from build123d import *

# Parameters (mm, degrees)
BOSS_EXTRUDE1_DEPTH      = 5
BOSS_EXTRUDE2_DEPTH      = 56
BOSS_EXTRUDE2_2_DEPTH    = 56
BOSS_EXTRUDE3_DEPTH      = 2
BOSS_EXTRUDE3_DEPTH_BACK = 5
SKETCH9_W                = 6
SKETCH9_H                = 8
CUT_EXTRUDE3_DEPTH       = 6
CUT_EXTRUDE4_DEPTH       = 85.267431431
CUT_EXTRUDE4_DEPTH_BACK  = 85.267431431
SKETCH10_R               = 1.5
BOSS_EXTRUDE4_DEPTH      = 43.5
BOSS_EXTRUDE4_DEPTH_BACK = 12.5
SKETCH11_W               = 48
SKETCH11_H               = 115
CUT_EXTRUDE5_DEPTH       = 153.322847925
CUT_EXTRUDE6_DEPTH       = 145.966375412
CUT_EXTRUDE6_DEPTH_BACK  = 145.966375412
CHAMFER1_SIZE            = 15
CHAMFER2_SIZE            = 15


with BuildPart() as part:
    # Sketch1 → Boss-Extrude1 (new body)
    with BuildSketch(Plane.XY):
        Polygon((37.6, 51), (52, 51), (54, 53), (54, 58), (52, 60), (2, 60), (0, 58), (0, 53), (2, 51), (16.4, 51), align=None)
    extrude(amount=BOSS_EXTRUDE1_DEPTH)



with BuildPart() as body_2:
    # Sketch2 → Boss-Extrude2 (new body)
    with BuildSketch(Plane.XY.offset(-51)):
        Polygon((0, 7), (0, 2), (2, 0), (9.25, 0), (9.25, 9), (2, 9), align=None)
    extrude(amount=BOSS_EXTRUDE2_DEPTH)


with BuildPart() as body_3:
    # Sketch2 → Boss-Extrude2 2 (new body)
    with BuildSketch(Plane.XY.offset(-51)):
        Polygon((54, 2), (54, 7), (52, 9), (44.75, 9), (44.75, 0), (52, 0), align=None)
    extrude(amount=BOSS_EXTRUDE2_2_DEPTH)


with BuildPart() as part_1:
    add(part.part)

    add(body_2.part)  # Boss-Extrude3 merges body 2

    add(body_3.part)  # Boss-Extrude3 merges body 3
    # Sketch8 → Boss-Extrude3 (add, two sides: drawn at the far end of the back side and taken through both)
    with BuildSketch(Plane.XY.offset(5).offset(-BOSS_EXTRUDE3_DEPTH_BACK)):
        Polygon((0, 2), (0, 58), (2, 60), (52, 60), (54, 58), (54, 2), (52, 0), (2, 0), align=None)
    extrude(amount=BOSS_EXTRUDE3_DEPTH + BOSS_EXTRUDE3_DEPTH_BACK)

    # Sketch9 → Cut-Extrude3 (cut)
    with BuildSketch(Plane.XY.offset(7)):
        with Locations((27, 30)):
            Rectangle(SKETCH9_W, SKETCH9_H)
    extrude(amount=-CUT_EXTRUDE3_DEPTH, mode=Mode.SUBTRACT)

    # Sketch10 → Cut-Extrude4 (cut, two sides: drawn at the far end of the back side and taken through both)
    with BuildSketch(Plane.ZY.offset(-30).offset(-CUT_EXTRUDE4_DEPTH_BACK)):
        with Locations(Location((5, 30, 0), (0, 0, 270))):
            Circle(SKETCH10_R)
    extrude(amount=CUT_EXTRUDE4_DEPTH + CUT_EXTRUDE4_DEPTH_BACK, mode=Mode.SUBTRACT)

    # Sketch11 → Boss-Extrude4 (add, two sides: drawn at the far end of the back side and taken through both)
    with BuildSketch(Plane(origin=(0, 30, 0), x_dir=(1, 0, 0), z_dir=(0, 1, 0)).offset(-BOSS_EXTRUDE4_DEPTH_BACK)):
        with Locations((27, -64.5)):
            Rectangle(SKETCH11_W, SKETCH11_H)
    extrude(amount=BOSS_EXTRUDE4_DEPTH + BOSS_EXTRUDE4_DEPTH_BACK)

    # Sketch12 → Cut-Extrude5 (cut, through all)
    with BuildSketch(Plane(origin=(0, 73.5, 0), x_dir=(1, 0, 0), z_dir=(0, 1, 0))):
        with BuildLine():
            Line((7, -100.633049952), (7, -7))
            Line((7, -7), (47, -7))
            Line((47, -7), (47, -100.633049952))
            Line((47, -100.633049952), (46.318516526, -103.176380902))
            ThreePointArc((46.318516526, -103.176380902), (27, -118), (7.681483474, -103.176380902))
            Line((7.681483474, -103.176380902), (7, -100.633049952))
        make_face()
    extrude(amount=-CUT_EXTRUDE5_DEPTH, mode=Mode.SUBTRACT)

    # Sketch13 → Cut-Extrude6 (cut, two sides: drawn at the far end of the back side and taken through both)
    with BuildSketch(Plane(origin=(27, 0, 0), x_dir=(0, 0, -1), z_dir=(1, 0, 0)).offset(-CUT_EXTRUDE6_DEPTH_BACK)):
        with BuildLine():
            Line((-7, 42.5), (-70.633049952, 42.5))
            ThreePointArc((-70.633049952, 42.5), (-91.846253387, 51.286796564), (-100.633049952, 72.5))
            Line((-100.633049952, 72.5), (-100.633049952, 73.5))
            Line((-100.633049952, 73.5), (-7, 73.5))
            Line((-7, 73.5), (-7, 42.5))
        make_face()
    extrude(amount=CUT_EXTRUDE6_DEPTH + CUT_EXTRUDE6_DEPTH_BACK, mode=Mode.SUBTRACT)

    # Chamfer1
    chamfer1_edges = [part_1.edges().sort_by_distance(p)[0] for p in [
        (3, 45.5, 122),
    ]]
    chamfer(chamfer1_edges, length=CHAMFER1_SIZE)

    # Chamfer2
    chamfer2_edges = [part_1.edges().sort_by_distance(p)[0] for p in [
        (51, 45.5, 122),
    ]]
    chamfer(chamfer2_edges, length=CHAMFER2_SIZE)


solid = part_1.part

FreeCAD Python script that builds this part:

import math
import FreeCAD as App
import Part
import Sketcher
from FreeCAD import Vector
Q = App.Units.Quantity


def edges_at(feature, points):
    """Names of the edges that pass closest to the given points."""
    edges = feature.Shape.Edges
    near = lambda p: min(range(len(edges)), key=lambda i: edges[i].distToShape(Part.Vertex(*p))[0])
    return sorted({f"Edge{near(p) + 1}" for p in points})

doc = App.newDocument("Part")
body = doc.addObject("PartDesign::Body", "Body")

# Sketch on XY plane
sketch1 = doc.addObject("Sketcher::SketchObject", "Sketch")
body.addObject(sketch1)
sketch1.AttachmentSupport = (doc.XY_Plane, [""])
sketch1.MapMode = "FlatFace"
sketch1.addGeometry([
    Part.LineSegment(Vector(52, 51, 0), Vector(54, 53, 0)),  # 0
    Part.LineSegment(Vector(54, 53, 0), Vector(54, 58, 0)),  # 1
    Part.LineSegment(Vector(54, 58, 0), Vector(52, 60, 0)),  # 2
    Part.LineSegment(Vector(52, 60, 0), Vector(2, 60, 0)),  # 3
    Part.LineSegment(Vector(2, 60, 0), Vector(0, 58, 0)),  # 4
    Part.LineSegment(Vector(0, 58, 0), Vector(0, 53, 0)),  # 5
    Part.LineSegment(Vector(0, 53, 0), Vector(2, 51, 0)),  # 6
    Part.LineSegment(Vector(2, 51, 0), Vector(52, 51, 0)),  # 7
], False)
sketch1.addConstraint([
    Sketcher.Constraint("Coincident", 0, 2, 1, 1),
    Sketcher.Constraint("Coincident", 1, 2, 2, 1),
    Sketcher.Constraint("Coincident", 2, 2, 3, 1),
    Sketcher.Constraint("Coincident", 3, 2, 4, 1),
    Sketcher.Constraint("Coincident", 4, 2, 5, 1),
    Sketcher.Constraint("Coincident", 5, 2, 6, 1),
    Sketcher.Constraint("Coincident", 6, 2, 7, 1),
    Sketcher.Constraint("Coincident", 7, 2, 0, 1),
    Sketcher.Constraint("Vertical", 1),
    Sketcher.Constraint("Horizontal", 3),
    Sketcher.Constraint("Vertical", 5),
    Sketcher.Constraint("Horizontal", 7),
    Sketcher.Constraint("PointOnObject", 4, 2, -2),
    Sketcher.Constraint("Perpendicular", 0, 2),
    Sketcher.Constraint("Perpendicular", 2, 4),
    Sketcher.Constraint("Perpendicular", 4, 6),
    Sketcher.Constraint("Horizontal", 1, 2, 4, 2),
    Sketcher.Constraint("Horizontal", 0, 2, 5, 2),
    Sketcher.Constraint("Vertical", 3, 2, 6, 2),
    Sketcher.Constraint("Vertical", 2, 2, 7, 2),
    Sketcher.Constraint("DistanceX", 3, 2, 3, 1, 50.0),
    Sketcher.Constraint("DistanceY", 1, 1, 1, 2, 5.0),
    Sketcher.Constraint("DistanceX", -1, 1, 0, 2, 54.0),
    Sketcher.Constraint("DistanceY", -1, 1, 0, 2, 53.0),
])
pad1 = doc.addObject("PartDesign::Pad", "Pad")
body.addObject(pad1)
pad1.Profile = sketch1
pad1.Length = 5
body2 = doc.addObject("PartDesign::Body", "Body001")

# Sketch on XY plane
sketch2 = doc.addObject("Sketcher::SketchObject", "Sketch001")
body2.addObject(sketch2)
sketch2.AttachmentSupport = (doc.getObject("XY_Plane001"), [""])
sketch2.MapMode = "FlatFace"
sketch2.AttachmentOffset = App.Placement(Vector(0, 0, -51), App.Rotation())
sketch2.addGeometry([
    Part.LineSegment(Vector(0, 7, 0), Vector(0, 2, 0)),  # 0
    Part.LineSegment(Vector(0, 2, 0), Vector(2, 0, 0)),  # 1
    Part.LineSegment(Vector(2, 0, 0), Vector(9.2, 0, 0)),  # 2
    Part.LineSegment(Vector(9.2, 0, 0), Vector(9.2, 9, 0)),  # 3
    Part.LineSegment(Vector(9.2, 9, 0), Vector(2, 9, 0)),  # 4
    Part.LineSegment(Vector(2, 9, 0), Vector(0, 7, 0)),  # 5
], False)
sketch2.addConstraint([
    Sketcher.Constraint("Coincident", 0, 2, 1, 1),
    Sketcher.Constraint("Coincident", 1, 2, 2, 1),
    Sketcher.Constraint("Coincident", 2, 2, 3, 1),
    Sketcher.Constraint("Coincident", 3, 2, 4, 1),
    Sketcher.Constraint("Coincident", 4, 2, 5, 1),
    Sketcher.Constraint("Coincident", 5, 2, 0, 1),
    Sketcher.Constraint("Vertical", 0),
    Sketcher.Constraint("Horizontal", 2),
    Sketcher.Constraint("Vertical", 3),
    Sketcher.Constraint("Horizontal", 4),
    Sketcher.Constraint("PointOnObject", 0, 2, -2),
    Sketcher.Constraint("PointOnObject", 1, 2, -1),
    Sketcher.Constraint("Perpendicular", 1, 5),
    Sketcher.Constraint("Vertical", 1, 2, 4, 2),
    Sketcher.Constraint("Equal", 1, 5),
    Sketcher.Constraint("DistanceY", 0, 2, 0, 1, 5.0),
    Sketcher.Constraint("DistanceY", 3, 1, 3, 2, 9.0),
    Sketcher.Constraint("DistanceX", 2, 1, 2, 2, 7.25),
])
pad2 = doc.addObject("PartDesign::Pad", "Pad001")
body2.addObject(pad2)
pad2.Profile = sketch2
pad2.Length = 56
body3 = doc.addObject("PartDesign::Body", "Body002")

# Sketch on XY plane
sketch3 = doc.addObject("Sketcher::SketchObject", "Sketch002")
body3.addObject(sketch3)
sketch3.AttachmentSupport = (doc.getObject("XY_Plane002"), [""])
sketch3.MapMode = "FlatFace"
sketch3.AttachmentOffset = App.Placement(Vector(0, 0, -51), App.Rotation())
sketch3.addGeometry([
    Part.LineSegment(Vector(54, 2, 0), Vector(54, 7, 0)),  # 0
    Part.LineSegment(Vector(54, 7, 0), Vector(52, 9, 0)),  # 1
    Part.LineSegment(Vector(52, 9, 0), Vector(44.8, 9, 0)),  # 2
    Part.LineSegment(Vector(44.8, 9, 0), Vector(44.8, 0, 0)),  # 3
    Part.LineSegment(Vector(44.8, 0, 0), Vector(52, 0, 0)),  # 4
    Part.LineSegment(Vector(52, 0, 0), Vector(54, 2, 0)),  # 5
], False)
sketch3.addConstraint([
    Sketcher.Constraint("Coincident", 0, 2, 1, 1),
    Sketcher.Constraint("Coincident", 1, 2, 2, 1),
    Sketcher.Constraint("Coincident", 2, 2, 3, 1),
    Sketcher.Constraint("Coincident", 3, 2, 4, 1),
    Sketcher.Constraint("Coincident", 4, 2, 5, 1),
    Sketcher.Constraint("Coincident", 5, 2, 0, 1),
    Sketcher.Constraint("Vertical", 0),
    Sketcher.Constraint("Horizontal", 2),
    Sketcher.Constraint("Vertical", 3),
    Sketcher.Constraint("Horizontal", 4),
    Sketcher.Constraint("PointOnObject", 3, 2, -1),
    Sketcher.Constraint("Perpendicular", 1, 5),
    Sketcher.Constraint("Vertical", 1, 2, 4, 2),
    Sketcher.Constraint("Equal", 1, 5),
    Sketcher.Constraint("DistanceY", 0, 1, 0, 2, 5.0),
    Sketcher.Constraint("DistanceY", 3, 2, 3, 1, 9.0),
    Sketcher.Constraint("DistanceX", -1, 1, 0, 2, 54.0),
    Sketcher.Constraint("DistanceX", 2, 2, 2, 1, 7.25),
])
pad3 = doc.addObject("PartDesign::Pad", "Pad002")
body3.addObject(pad3)
pad3.Profile = sketch3
pad3.Length = 56
body.AllowCompound = True
doc.recompute()

boolean = doc.addObject("PartDesign::Boolean", "Boolean")
body.addObject(boolean)
boolean.Type = "Fuse"
boolean.addObjects([body2])
doc.recompute()

boolean2 = doc.addObject("PartDesign::Boolean", "Boolean001")
body.addObject(boolean2)
boolean2.Type = "Fuse"
boolean2.addObjects([body3])

# Sketch on XY plane
sketch4 = doc.addObject("Sketcher::SketchObject", "Sketch003")
body.addObject(sketch4)
sketch4.AttachmentSupport = (doc.XY_Plane, [""])
sketch4.MapMode = "FlatFace"
sketch4.AttachmentOffset = App.Placement(Vector(0, 0, 5), App.Rotation())
sketch4.addGeometry([
    Part.LineSegment(Vector(0, 58, 0), Vector(0, 2, 0)),  # 0
    Part.LineSegment(Vector(0, 2, 0), Vector(2, 0, 0)),  # 1
    Part.LineSegment(Vector(2, 0, 0), Vector(52, 0, 0)),  # 2
    Part.LineSegment(Vector(52, 0, 0), Vector(54, 2, 0)),  # 3
    Part.LineSegment(Vector(54, 2, 0), Vector(54, 58, 0)),  # 4
    Part.LineSegment(Vector(54, 58, 0), Vector(52, 60, 0)),  # 5
    Part.LineSegment(Vector(52, 60, 0), Vector(2, 60, 0)),  # 6
    Part.LineSegment(Vector(2, 60, 0), Vector(0, 58, 0)),  # 7
], False)
sketch4.addConstraint([
    Sketcher.Constraint("Coincident", 0, 2, 1, 1),
    Sketcher.Constraint("Coincident", 1, 2, 2, 1),
    Sketcher.Constraint("Coincident", 2, 2, 3, 1),
    Sketcher.Constraint("Coincident", 3, 2, 4, 1),
    Sketcher.Constraint("Coincident", 4, 2, 5, 1),
    Sketcher.Constraint("Coincident", 5, 2, 6, 1),
    Sketcher.Constraint("Coincident", 6, 2, 7, 1),
    Sketcher.Constraint("Coincident", 7, 2, 0, 1),
    Sketcher.Constraint("Vertical", 0),
    Sketcher.Constraint("Horizontal", 2),
    Sketcher.Constraint("Vertical", 4),
    Sketcher.Constraint("Horizontal", 6),
    Sketcher.Constraint("PointOnObject", 0, 2, -2),
    Sketcher.Constraint("PointOnObject", 1, 2, -1),
    Sketcher.Constraint("Perpendicular", 1, 3),
    Sketcher.Constraint("Perpendicular", 3, 5),
    Sketcher.Constraint("Perpendicular", 5, 7),
    Sketcher.Constraint("Horizontal", 0, 2, 3, 2),
    Sketcher.Constraint("Horizontal", 4, 2, 7, 2),
    Sketcher.Constraint("Vertical", 2, 2, 5, 2),
    Sketcher.Constraint("Vertical", 1, 2, 6, 2),
    Sketcher.Constraint("DistanceX", 2, 1, 2, 2, 50.0),
    Sketcher.Constraint("DistanceY", 0, 2, 0, 1, 56.0),
    Sketcher.Constraint("DistanceY", -1, 1, 0, 2, 2.0),
])
pad4 = doc.addObject("PartDesign::Pad", "Pad003")
body.addObject(pad4)
pad4.Profile = sketch4
pad4.Type = "TwoLengths"
pad4.Length = 2
pad4.Length2 = 5

# Sketch on XY plane
sketch5 = doc.addObject("Sketcher::SketchObject", "Sketch004")
body.addObject(sketch5)
sketch5.AttachmentSupport = (doc.XY_Plane, [""])
sketch5.MapMode = "FlatFace"
sketch5.AttachmentOffset = App.Placement(Vector(0, 0, 7), App.Rotation())
sketch5.addGeometry([
    Part.LineSegment(Vector(24, 34, 0), Vector(24, 26, 0)),
    Part.LineSegment(Vector(24, 26, 0), Vector(30, 26, 0)),
    Part.LineSegment(Vector(30, 26, 0), Vector(30, 34, 0)),
    Part.LineSegment(Vector(30, 34, 0), Vector(24, 34, 0)),
], False)
sketch5.addConstraint([
    Sketcher.Constraint("Coincident", 0, 2, 1, 1),
    Sketcher.Constraint("Coincident", 1, 2, 2, 1),
    Sketcher.Constraint("Coincident", 2, 2, 3, 1),
    Sketcher.Constraint("Coincident", 3, 2, 0, 1),
    Sketcher.Constraint("Vertical", 0),
    Sketcher.Constraint("Horizontal", 1),
    Sketcher.Constraint("Vertical", 2),
    Sketcher.Constraint("Horizontal", 3),
    Sketcher.Constraint("DistanceX", 1, 1, 1, 2, 6.0),
    Sketcher.Constraint("DistanceY", 0, 2, 0, 1, 8.0),
    Sketcher.Constraint("DistanceX", -1, 1, 0, 2, 24.0),
    Sketcher.Constraint("DistanceY", -1, 1, 0, 2, 26.0),
])
pocket1 = doc.addObject("PartDesign::Pocket", "Pocket")
body.addObject(pocket1)
pocket1.Profile = sketch5
pocket1.Length = 6

# Sketch on YZ plane
sketch6 = doc.addObject("Sketcher::SketchObject", "Sketch005")
body.addObject(sketch6)
sketch6.AttachmentSupport = (doc.YZ_Plane, [""])
sketch6.MapMode = "FlatFace"
sketch6.AttachmentOffset = App.Placement(Vector(0, 0, 30), App.Rotation())
sketch6.addGeometry(Part.Circle(Vector(30, 5, 0), Vector(0, 0, 1), 1.5), False)
sketch6.addConstraint([
    Sketcher.Constraint("Diameter", 0, 3.0),
    Sketcher.Constraint("DistanceX", -1, 1, 0, 3, 30.0),
    Sketcher.Constraint("DistanceY", -1, 1, 0, 3, 5.0),
])
pocket2 = doc.addObject("PartDesign::Pocket", "Pocket001")
body.addObject(pocket2)
pocket2.Profile = sketch6
pocket2.Type = "ThroughAll"
pocket2.Midplane = True

# Sketch on XZ plane
sketch7 = doc.addObject("Sketcher::SketchObject", "Sketch006")
body.addObject(sketch7)
sketch7.AttachmentSupport = (doc.XZ_Plane, [""])
sketch7.MapMode = "FlatFace"
sketch7.AttachmentOffset = App.Placement(Vector(0, 0, -30), App.Rotation())
sketch7.addGeometry([
    Part.LineSegment(Vector(3, 7, 0), Vector(3, 122, 0)),
    Part.LineSegment(Vector(3, 122, 0), Vector(51, 122, 0)),
    Part.LineSegment(Vector(51, 122, 0), Vector(51, 7, 0)),
    Part.LineSegment(Vector(51, 7, 0), Vector(3, 7, 0)),
], False)
sketch7.addConstraint([
    Sketcher.Constraint("Coincident", 0, 2, 1, 1),
    Sketcher.Constraint("Coincident", 1, 2, 2, 1),
    Sketcher.Constraint("Coincident", 2, 2, 3, 1),
    Sketcher.Constraint("Coincident", 3, 2, 0, 1),
    Sketcher.Constraint("Vertical", 0),
    Sketcher.Constraint("Horizontal", 1),
    Sketcher.Constraint("Vertical", 2),
    Sketcher.Constraint("Horizontal", 3),
    Sketcher.Constraint("DistanceX", 1, 1, 1, 2, 48.0),
    Sketcher.Constraint("DistanceY", 0, 1, 0, 2, 115.0),
    Sketcher.Constraint("DistanceX", -1, 1, 0, 2, 3.0),
    Sketcher.Constraint("DistanceY", -1, 1, 0, 2, 122.0),
])
pad5 = doc.addObject("PartDesign::Pad", "Pad004")
body.addObject(pad5)
pad5.Profile = sketch7
pad5.Type = "TwoLengths"
pad5.Length = 43.5
pad5.Length2 = 12.5
pad5.Reversed = True

# Sketch on XZ plane
sketch8 = doc.addObject("Sketcher::SketchObject", "Sketch007")
body.addObject(sketch8)
sketch8.AttachmentSupport = (doc.XZ_Plane, [""])
sketch8.MapMode = "FlatFace"
sketch8.AttachmentOffset = App.Placement(Vector(0, 0, -73.5), App.Rotation())
sketch8.addGeometry([
    Part.LineSegment(Vector(7, 7, 0), Vector(7, 100.6, 0)),  # 0
    Part.LineSegment(Vector(7, 100.6, 0), Vector(7.7, 103.2, 0)),  # 1
    Part.ArcOfCircle(Part.Circle(Vector(27, 98, 0), Vector(0, 0, 1), 20), math.radians(15), math.radians(165)),  # 2
    Part.LineSegment(Vector(46.3, 103.2, 0), Vector(47, 100.6, 0)),  # 3
    Part.LineSegment(Vector(47, 100.6, 0), Vector(47, 7, 0)),  # 4
    Part.LineSegment(Vector(47, 7, 0), Vector(7, 7, 0)),  # 5
], False)
sketch8.addConstraint([
    Sketcher.Constraint("Coincident", 0, 2, 1, 1),
    Sketcher.Constraint("Tangent", 1, 2, 2, 2),
    Sketcher.Constraint("Tangent", 2, 1, 3, 1),
    Sketcher.Constraint("Coincident", 3, 2, 4, 1),
    Sketcher.Constraint("Coincident", 4, 2, 5, 1),
    Sketcher.Constraint("Coincident", 5, 2, 0, 1),
    Sketcher.Constraint("Vertical", 0),
    Sketcher.Constraint("Vertical", 4),
    Sketcher.Constraint("Horizontal", 5),
    Sketcher.Constraint("Horizontal", 1, 2, 2, 1),
    Sketcher.Constraint("Horizontal", 0, 2, 3, 2),
    Sketcher.Constraint("Radius", 2, 20.0),
    Sketcher.Constraint("DistanceX", 5, 2, 5, 1, 40.0),
    Sketcher.Constraint("Angle", 1, Q("75 deg")),
    Sketcher.Constraint("DistanceX", -1, 1, 2, 3, 27.0),
    Sketcher.Constraint("DistanceY", -1, 1, 2, 3, 98.0),
    Sketcher.Constraint("DistanceY", -1, 1, 4, 2, 7.0),
])
pocket3 = doc.addObject("PartDesign::Pocket", "Pocket002")
body.addObject(pocket3)
pocket3.Profile = sketch8
pocket3.Type = "ThroughAll"
pocket3.Reversed = True

# Sketch on YZ plane
sketch9 = doc.addObject("Sketcher::SketchObject", "Sketch008")
body.addObject(sketch9)
sketch9.AttachmentSupport = (doc.YZ_Plane, [""])
sketch9.MapMode = "FlatFace"
sketch9.AttachmentOffset = App.Placement(Vector(0, 0, 27), App.Rotation())
sketch9.addGeometry([
    Part.LineSegment(Vector(42.5, 70.6, 0), Vector(42.5, 7, 0)),  # 0
    Part.LineSegment(Vector(42.5, 7, 0), Vector(73.5, 7, 0)),  # 1
    Part.LineSegment(Vector(73.5, 7, 0), Vector(73.5, 100.6, 0)),  # 2
    Part.LineSegment(Vector(73.5, 100.6, 0), Vector(72.5, 100.6, 0)),  # 3
    Part.ArcOfCircle(Part.Circle(Vector(72.5, 70.6, 0), Vector(0, 0, 1), 30), math.radians(90), math.radians(180)),  # 4
], False)
sketch9.addConstraint([
    Sketcher.Constraint("Coincident", 0, 2, 1, 1),
    Sketcher.Constraint("Coincident", 1, 2, 2, 1),
    Sketcher.Constraint("Coincident", 2, 2, 3, 1),
    Sketcher.Constraint("Tangent", 3, 2, 4, 1),
    Sketcher.Constraint("Tangent", 4, 2, 0, 1),
    Sketcher.Constraint("Vertical", 0),
    Sketcher.Constraint("Horizontal", 1),
    Sketcher.Constraint("Vertical", 2),
    Sketcher.Constraint("Horizontal", 3),
    Sketcher.Constraint("Radius", 4, 30.0),
    Sketcher.Constraint("DistanceX", 1, 1, 1, 2, 31.0),
    Sketcher.Constraint("DistanceY", -1, 1, 0, 2, 7.0),
    Sketcher.Constraint("DistanceX", -1, 1, 4, 3, 72.5),
    Sketcher.Constraint("DistanceY", 0, 2, 0, 1, 63.63305),
])
pocket4 = doc.addObject("PartDesign::Pocket", "Pocket003")
body.addObject(pocket4)
pocket4.Profile = sketch9
pocket4.Type = "ThroughAll"
pocket4.Midplane = True
doc.recompute()

chamfer = doc.addObject("PartDesign::Chamfer", "Chamfer")
body.addObject(chamfer)
chamfer.Base = (pocket4, edges_at(pocket4, [(3, 45.5, 122)]))
chamfer.Size = 15
doc.recompute()

chamfer2 = doc.addObject("PartDesign::Chamfer", "Chamfer001")
body.addObject(chamfer2)
chamfer2.Base = (chamfer, edges_at(chamfer, [(51, 45.5, 122)]))
chamfer2.Size = 15

doc.recompute()
